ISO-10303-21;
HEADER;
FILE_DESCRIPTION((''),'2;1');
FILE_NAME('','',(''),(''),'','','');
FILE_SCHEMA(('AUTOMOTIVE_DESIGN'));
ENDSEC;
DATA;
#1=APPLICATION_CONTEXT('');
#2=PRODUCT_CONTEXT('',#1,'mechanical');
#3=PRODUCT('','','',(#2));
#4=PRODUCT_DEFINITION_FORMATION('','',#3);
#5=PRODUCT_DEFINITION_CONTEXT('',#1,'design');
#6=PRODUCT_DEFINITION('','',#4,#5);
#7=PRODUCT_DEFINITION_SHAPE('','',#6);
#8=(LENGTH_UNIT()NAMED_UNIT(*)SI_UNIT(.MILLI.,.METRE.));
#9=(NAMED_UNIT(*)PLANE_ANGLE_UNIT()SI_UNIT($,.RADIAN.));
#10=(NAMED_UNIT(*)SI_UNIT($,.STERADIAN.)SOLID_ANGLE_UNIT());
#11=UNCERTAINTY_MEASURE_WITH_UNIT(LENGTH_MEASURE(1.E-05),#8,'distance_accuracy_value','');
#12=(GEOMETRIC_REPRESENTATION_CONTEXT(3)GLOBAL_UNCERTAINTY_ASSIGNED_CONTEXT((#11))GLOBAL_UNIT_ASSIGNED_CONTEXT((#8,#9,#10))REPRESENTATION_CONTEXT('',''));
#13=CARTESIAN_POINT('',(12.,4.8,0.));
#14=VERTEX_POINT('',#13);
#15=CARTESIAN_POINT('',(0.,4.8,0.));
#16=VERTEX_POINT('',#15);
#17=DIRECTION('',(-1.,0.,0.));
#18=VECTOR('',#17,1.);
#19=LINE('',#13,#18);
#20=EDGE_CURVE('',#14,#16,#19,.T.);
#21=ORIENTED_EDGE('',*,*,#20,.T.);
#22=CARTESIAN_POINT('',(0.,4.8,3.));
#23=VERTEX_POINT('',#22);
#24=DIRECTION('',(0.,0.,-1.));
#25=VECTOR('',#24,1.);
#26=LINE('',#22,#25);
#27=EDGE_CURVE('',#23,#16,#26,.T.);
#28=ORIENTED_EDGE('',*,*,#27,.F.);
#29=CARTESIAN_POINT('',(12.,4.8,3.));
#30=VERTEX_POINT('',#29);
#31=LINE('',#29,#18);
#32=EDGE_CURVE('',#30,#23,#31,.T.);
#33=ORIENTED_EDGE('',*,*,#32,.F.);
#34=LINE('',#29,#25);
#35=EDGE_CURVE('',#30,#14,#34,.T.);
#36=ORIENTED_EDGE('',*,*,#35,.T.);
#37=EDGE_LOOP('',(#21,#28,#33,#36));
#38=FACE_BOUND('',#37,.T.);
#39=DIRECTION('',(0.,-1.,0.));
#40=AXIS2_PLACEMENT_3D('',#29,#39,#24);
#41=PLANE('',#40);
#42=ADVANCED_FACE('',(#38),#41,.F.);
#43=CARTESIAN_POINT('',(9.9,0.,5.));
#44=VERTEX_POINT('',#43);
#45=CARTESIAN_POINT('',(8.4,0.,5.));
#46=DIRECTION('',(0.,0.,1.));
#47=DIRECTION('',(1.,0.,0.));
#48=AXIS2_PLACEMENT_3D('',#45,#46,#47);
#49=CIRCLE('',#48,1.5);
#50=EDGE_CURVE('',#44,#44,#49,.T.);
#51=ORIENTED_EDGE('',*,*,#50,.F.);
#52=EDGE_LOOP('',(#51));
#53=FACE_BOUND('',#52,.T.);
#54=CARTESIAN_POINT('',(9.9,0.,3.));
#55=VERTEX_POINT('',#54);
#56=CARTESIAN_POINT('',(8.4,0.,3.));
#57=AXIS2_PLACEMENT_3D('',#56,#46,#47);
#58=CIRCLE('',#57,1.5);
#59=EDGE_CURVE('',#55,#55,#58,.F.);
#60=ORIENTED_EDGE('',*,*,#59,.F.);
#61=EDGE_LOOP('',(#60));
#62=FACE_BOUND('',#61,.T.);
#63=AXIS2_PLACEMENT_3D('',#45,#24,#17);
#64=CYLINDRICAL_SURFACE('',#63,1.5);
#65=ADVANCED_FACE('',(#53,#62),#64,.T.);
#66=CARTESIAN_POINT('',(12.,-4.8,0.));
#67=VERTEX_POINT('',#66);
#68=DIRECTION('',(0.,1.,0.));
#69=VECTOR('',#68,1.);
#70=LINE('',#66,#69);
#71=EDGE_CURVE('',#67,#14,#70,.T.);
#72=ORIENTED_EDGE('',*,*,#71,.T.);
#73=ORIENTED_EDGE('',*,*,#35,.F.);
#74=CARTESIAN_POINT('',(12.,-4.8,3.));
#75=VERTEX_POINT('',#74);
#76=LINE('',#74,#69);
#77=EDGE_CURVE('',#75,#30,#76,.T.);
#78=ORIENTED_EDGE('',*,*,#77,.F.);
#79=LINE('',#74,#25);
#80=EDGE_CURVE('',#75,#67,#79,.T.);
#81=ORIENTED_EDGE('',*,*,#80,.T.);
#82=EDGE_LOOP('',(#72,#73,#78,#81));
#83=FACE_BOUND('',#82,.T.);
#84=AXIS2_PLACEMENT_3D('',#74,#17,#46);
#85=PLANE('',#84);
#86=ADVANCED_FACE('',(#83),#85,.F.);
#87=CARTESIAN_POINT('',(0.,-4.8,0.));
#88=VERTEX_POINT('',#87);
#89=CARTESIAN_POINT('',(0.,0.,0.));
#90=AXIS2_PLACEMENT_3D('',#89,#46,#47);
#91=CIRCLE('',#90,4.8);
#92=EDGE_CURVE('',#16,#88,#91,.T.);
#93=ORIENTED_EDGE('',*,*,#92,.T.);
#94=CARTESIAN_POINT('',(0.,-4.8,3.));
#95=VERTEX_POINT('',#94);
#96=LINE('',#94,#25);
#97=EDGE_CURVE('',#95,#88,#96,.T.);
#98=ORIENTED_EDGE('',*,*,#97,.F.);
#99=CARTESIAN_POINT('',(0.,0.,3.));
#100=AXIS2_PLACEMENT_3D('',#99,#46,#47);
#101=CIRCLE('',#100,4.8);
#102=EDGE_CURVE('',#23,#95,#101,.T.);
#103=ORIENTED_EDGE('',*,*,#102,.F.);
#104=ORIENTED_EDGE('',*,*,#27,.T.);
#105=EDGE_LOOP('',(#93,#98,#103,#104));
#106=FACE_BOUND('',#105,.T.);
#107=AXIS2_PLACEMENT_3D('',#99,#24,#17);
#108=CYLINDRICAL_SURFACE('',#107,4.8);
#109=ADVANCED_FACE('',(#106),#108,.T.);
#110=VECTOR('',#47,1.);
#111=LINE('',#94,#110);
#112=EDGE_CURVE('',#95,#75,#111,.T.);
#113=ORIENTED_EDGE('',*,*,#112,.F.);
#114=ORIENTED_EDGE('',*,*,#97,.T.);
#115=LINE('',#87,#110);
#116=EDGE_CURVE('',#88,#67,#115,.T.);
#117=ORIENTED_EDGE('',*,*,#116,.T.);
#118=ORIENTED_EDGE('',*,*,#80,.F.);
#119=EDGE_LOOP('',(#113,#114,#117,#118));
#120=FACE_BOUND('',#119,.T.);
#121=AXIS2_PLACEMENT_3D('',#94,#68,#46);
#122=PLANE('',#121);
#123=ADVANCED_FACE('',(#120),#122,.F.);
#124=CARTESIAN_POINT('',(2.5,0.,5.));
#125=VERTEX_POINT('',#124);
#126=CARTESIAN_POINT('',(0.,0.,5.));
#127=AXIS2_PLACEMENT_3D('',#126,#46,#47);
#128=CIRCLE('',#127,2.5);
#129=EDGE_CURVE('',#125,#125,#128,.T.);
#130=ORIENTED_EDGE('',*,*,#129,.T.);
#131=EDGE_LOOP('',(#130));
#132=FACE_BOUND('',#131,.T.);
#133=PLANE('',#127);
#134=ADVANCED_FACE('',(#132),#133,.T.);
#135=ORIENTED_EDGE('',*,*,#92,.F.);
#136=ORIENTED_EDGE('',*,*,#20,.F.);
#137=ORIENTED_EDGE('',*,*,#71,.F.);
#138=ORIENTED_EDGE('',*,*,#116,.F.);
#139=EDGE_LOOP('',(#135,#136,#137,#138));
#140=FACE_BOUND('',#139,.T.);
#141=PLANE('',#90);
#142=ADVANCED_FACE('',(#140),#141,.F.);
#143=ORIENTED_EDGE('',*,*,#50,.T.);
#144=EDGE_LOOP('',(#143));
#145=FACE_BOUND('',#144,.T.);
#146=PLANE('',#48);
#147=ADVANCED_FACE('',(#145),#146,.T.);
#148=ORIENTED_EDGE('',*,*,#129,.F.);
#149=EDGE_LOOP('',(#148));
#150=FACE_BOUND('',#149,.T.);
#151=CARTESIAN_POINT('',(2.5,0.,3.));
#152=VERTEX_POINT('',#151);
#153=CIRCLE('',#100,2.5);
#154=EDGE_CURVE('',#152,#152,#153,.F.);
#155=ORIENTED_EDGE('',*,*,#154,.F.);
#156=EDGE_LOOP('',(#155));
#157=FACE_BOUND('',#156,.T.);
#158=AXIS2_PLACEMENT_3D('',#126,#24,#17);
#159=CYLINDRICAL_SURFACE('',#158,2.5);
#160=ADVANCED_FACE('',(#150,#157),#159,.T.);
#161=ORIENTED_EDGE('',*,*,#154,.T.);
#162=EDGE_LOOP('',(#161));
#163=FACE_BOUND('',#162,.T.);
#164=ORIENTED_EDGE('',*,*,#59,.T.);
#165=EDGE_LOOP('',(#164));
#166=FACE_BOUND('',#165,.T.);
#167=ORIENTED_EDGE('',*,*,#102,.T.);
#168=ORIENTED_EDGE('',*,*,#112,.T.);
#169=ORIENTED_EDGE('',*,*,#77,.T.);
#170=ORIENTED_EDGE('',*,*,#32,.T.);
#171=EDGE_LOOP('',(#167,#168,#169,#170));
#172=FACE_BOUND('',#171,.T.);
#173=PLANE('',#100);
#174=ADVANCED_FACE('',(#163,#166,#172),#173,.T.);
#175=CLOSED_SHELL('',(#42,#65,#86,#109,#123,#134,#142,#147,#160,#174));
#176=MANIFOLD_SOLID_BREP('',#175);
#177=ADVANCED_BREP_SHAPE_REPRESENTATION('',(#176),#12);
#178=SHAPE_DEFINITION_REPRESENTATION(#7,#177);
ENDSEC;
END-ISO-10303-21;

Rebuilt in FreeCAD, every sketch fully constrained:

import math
import FreeCAD as App
import Part
import Sketcher

doc = App.newDocument("Part")
params = doc.addObject("Spreadsheet::Sheet", "Params")
for row, (alias, value) in enumerate([
    ("sketch1_radius", "4.8 mm"),
    ("sketch1_width", "12 mm"),
    ("pad1_length", "3 mm"),
    ("sketch2_diameter", "5 mm"),
    ("sketch2_diameter2", "3 mm"),
    ("pad2_length", "5 mm"),
], start=1):
    params.set(f"A{row}", alias)
    params.set(f"B{row}", "=" + value)
    params.setAlias(f"B{row}", alias)

body = doc.addObject("PartDesign::Body", "Body")

# Sketch on XY plane
sketch1 = body.newObject("Sketcher::SketchObject", "Sketch")
sketch1.AttachmentSupport = (doc.getObject("XY_Plane"), [""])
sketch1.MapMode = "FlatFace"
sketch1.addGeometry([
    Part.LineSegment(App.Vector(0, -4.8, 0), App.Vector(12, -4.8, 0)),
    Part.LineSegment(App.Vector(12, -4.8, 0), App.Vector(12, 4.8, 0)),
    Part.LineSegment(App.Vector(12, 4.8, 0), App.Vector(0, 4.8, 0)),
    Part.ArcOfCircle(Part.Circle(App.Vector(0, 0, 0), App.Vector(0, 0, 1), 4.8), math.radians(90), math.radians(270)),
], False)
sketch1.addConstraint([
    Sketcher.Constraint("Coincident", 0, 2, 1, 1),
    Sketcher.Constraint("Coincident", 1, 2, 2, 1),
    Sketcher.Constraint("Tangent", 2, 2, 3, 1),
    Sketcher.Constraint("Tangent", 3, 2, 0, 1),
    Sketcher.Constraint("Horizontal", 0),
    Sketcher.Constraint("Vertical", 1),
    Sketcher.Constraint("Horizontal", 2),
    Sketcher.Constraint("Coincident", 3, 3, -1, 1),
    Sketcher.Constraint("Radius", 3, 4.8),
    Sketcher.Constraint("DistanceX", 0, 1, 0, 2, 12.0),
])
sketch1.setExpression("Constraints[8]", "Params.sketch1_radius")
sketch1.setExpression("Constraints[9]", "Params.sketch1_width")
pad1 = body.newObject("PartDesign::Pad", "Pad")
pad1.Profile = sketch1
pad1.setExpression("Length", "Params.pad1_length")

# Sketch on XY plane
sketch2 = body.newObject("Sketcher::SketchObject", "Sketch001")
sketch2.AttachmentSupport = (doc.getObject("XY_Plane"), [""])
sketch2.MapMode = "FlatFace"
sketch2.addGeometry([
    Part.Circle(App.Vector(0, 0, 0), App.Vector(0, 0, 1), 2.5),
    Part.Circle(App.Vector(8.4, 0, 0), App.Vector(0, 0, 1), 1.5),
], False)
sketch2.addConstraint([
    Sketcher.Constraint("Coincident", 0, 3, -1, 1),
    Sketcher.Constraint("PointOnObject", 1, 3, -1),
    Sketcher.Constraint("Diameter", 0, 5.0),
    Sketcher.Constraint("Diameter", 1, 3.0),
    Sketcher.Constraint("DistanceX", -1, 1, 1, 3, 8.4),
])
sketch2.setExpression("Constraints[2]", "Params.sketch2_diameter")
sketch2.setExpression("Constraints[3]", "Params.sketch2_diameter2")
pad2 = body.newObject("PartDesign::Pad", "Pad001")
pad2.Profile = sketch2
pad2.setExpression("Length", "Params.pad2_length")

doc.recompute()
